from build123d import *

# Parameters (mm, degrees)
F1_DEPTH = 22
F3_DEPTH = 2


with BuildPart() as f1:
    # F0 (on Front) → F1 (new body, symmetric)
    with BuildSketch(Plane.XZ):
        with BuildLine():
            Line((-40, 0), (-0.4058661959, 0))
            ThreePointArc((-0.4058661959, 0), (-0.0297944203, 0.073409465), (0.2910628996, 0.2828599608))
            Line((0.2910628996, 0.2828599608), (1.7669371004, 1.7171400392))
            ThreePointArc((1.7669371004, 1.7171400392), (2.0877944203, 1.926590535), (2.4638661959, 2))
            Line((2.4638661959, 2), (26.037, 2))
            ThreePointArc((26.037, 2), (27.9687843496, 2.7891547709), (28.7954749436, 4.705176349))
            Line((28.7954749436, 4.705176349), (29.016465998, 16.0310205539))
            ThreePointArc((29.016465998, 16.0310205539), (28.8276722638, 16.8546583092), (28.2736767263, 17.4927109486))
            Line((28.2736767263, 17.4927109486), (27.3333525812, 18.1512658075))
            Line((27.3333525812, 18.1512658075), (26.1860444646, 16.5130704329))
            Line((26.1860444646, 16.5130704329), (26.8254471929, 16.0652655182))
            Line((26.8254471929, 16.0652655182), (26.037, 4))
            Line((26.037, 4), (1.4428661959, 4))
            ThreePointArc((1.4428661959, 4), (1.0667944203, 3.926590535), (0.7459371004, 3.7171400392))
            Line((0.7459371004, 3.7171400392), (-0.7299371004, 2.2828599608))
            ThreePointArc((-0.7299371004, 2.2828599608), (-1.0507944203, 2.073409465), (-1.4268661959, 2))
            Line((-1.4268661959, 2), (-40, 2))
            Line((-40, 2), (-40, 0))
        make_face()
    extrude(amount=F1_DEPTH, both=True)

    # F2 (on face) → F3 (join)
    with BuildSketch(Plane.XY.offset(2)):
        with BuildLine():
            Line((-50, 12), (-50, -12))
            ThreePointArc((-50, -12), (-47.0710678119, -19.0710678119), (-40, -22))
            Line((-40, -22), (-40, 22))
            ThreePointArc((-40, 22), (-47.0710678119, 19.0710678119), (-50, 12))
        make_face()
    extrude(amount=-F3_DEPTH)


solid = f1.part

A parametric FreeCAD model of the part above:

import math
import FreeCAD as App
import Part
import Sketcher
from FreeCAD import Vector

doc = App.newDocument("Part")
body = doc.addObject("PartDesign::Body", "Body")

# Sketch on XZ plane
sketch1 = doc.addObject("Sketcher::SketchObject", "Sketch")
body.addObject(sketch1)
sketch1.AttachmentSupport = (doc.XZ_Plane, [""])
sketch1.MapMode = "FlatFace"
sketch1.addGeometry([
    Part.LineSegment(Vector(-40, 0, 0), Vector(-0.405866, 0, 0)),  # 0
    Part.ArcOfCircle(Part.Circle(Vector(-0.405866, 1, 0), Vector(0, 0, 1), 1), math.radians(-90), math.radians(-45.818859)),  # 1
    Part.LineSegment(Vector(0.291063, 0.28286, 0), Vector(1.766937, 1.71714, 0)),  # 2
    Part.ArcOfCircle(Part.Circle(Vector(2.463866, 1, 0), Vector(0, 0, 1), 1), math.radians(90), math.radians(134.181141)),  # 3
    Part.LineSegment(Vector(2.463866, 2, 0), Vector(26.037, 2, 0)),  # 4
    Part.ArcOfCircle(Part.Circle(Vector(26.037, 4.759, 0), Vector(0, 0, 1), 2.759), math.radians(-90), math.radians(-1.117819)),  # 5
    Part.LineSegment(Vector(28.795475, 4.705176, 0), Vector(29.016466, 16.031021, 0)),  # 6
    Part.ArcOfCircle(Part.Circle(Vector(27.273798, 16.065024, 0), Vector(0, 0, 1), 1.743), math.radians(-1.117819), math.radians(54.994571)),  # 7
    Part.LineSegment(Vector(28.273677, 17.492711, 0), Vector(27.333353, 18.151266, 0)),  # 8
    Part.LineSegment(Vector(27.333353, 18.151266, 0), Vector(26.186044, 16.51307, 0)),  # 9
    Part.LineSegment(Vector(26.186044, 16.51307, 0), Vector(26.825447, 16.065266, 0)),  # 10
    Part.LineSegment(Vector(26.825447, 16.065266, 0), Vector(26.037, 4, 0)),  # 11
    Part.LineSegment(Vector(26.037, 4, 0), Vector(1.442866, 4, 0)),  # 12
    Part.ArcOfCircle(Part.Circle(Vector(1.442866, 3, 0), Vector(0, 0, 1), 1), math.radians(90), math.radians(134.181141)),  # 13
    Part.LineSegment(Vector(0.745937, 3.71714, 0), Vector(-0.729937, 2.28286, 0)),  # 14
    Part.ArcOfCircle(Part.Circle(Vector(-1.426866, 3, 0), Vector(0, 0, 1), 1), math.radians(-90), math.radians(-45.818859)),  # 15
    Part.LineSegment(Vector(-1.426866, 2, 0), Vector(-40, 2, 0)),  # 16
    Part.LineSegment(Vector(-40, 2, 0), Vector(-40, 0, 0)),  # 17
], False)
sketch1.addConstraint([
    Sketcher.Constraint("Tangent", 0, 2, 1, 1),
    Sketcher.Constraint("Tangent", 1, 2, 2, 1),
    Sketcher.Constraint("Tangent", 2, 2, 3, 2),
    Sketcher.Constraint("Tangent", 3, 1, 4, 1),
    Sketcher.Constraint("Tangent", 4, 2, 5, 1),
    Sketcher.Constraint("Tangent", 5, 2, 6, 1),
    Sketcher.Constraint("Tangent", 6, 2, 7, 1),
    Sketcher.Constraint("Tangent", 7, 2, 8, 1),
    Sketcher.Constraint("Coincident", 8, 2, 9, 1),
    Sketcher.Constraint("Coincident", 9, 2, 10, 1),
    Sketcher.Constraint("Coincident", 10, 2, 11, 1),
    Sketcher.Constraint("Coincident", 11, 2, 12, 1),
    Sketcher.Constraint("Tangent", 12, 2, 13, 1),
    Sketcher.Constraint("Tangent", 13, 2, 14, 1),
    Sketcher.Constraint("Tangent", 14, 2, 15, 2),
    Sketcher.Constraint("Tangent", 15, 1, 16, 1),
    Sketcher.Constraint("Coincident", 16, 2, 17, 1),
    Sketcher.Constraint("Coincident", 17, 2, 0, 1),
    Sketcher.Constraint("Horizontal", 0),
    Sketcher.Constraint("Horizontal", 4),
    Sketcher.Constraint("Horizontal", 12),
    Sketcher.Constraint("Horizontal", 16),
    Sketcher.Constraint("Vertical", 17),
    Sketcher.Constraint("Equal", 1, 3),
    Sketcher.Constraint("Equal", 3, 13),
    Sketcher.Constraint("Equal", 13, 15),
    Sketcher.Constraint("PointOnObject", 0, 2, -1),
    Sketcher.Constraint("Perpendicular", 8, 9),
    Sketcher.Constraint("Perpendicular", 9, 10),
    Sketcher.Constraint("Parallel", 2, 14),
    Sketcher.Constraint("Horizontal", 1, 3, 3, 3),
    Sketcher.Constraint("Horizontal", 13, 3, 15, 3),
    Sketcher.Constraint("Horizontal", 4, 2, 15, 1),
    Sketcher.Constraint("Vertical", 4, 2, 11, 2),
    Sketcher.Constraint("Radius", 1, 1.0),
    Sketcher.Constraint("Distance", 9, 2.0),
    Sketcher.Constraint("DistanceX", 16, 2, -1, 1, 40.0),
    Sketcher.Constraint("Radius", 5, 2.759),
    Sketcher.Constraint("Radius", 7, 1.743),
    Sketcher.Constraint("Distance", 2, 2.058),
    Sketcher.Constraint("Distance", 6, 11.328),
    Sketcher.Constraint("Distance", 8, 1.148),
    Sketcher.Constraint("Distance", 11, 12.091),
    Sketcher.Constraint("DistanceX", -1, 1, 5, 3, 26.037),
    Sketcher.Constraint("DistanceX", 13, 3, 3, 3, 1.021),
    Sketcher.Constraint("DistanceY", 10, 2, 8, 2, 2.086),
    Sketcher.Constraint("DistanceX", 3, 1, 6, 2, 26.5526),
    Sketcher.Constraint("DistanceX", 7, 2, 5, 2, 0.521798),
])
pad1 = doc.addObject("PartDesign::Pad", "Pad")
body.addObject(pad1)
pad1.Profile = sketch1
pad1.Length = 44
pad1.Midplane = True

# Sketch on XY plane
sketch2 = doc.addObject("Sketcher::SketchObject", "Sketch001")
body.addObject(sketch2)
sketch2.AttachmentSupport = (doc.XY_Plane, [""])
sketch2.MapMode = "FlatFace"
sketch2.AttachmentOffset = App.Placement(Vector(0, 0, 2), App.Rotation())
sketch2.addGeometry([
    Part.LineSegment(Vector(-50, 12, 0), Vector(-50, -12, 0)),
    Part.ArcOfCircle(Part.Circle(Vector(-40, -12, 0), Vector(0, 0, 1), 10), math.radians(180), math.radians(270)),
    Part.LineSegment(Vector(-40, -22, 0), Vector(-40, 22, 0)),
    Part.ArcOfCircle(Part.Circle(Vector(-40, 12, 0), Vector(0, 0, 1), 10), math.radians(90), math.radians(180)),
], False)
sketch2.addConstraint([
    Sketcher.Constraint("Tangent", 0, 2, 1, 1),
    Sketcher.Constraint("Coincident", 1, 2, 2, 1),
    Sketcher.Constraint("Coincident", 2, 2, 3, 1),
    Sketcher.Constraint("Tangent", 3, 2, 0, 1),
    Sketcher.Constraint("Vertical", 0),
    Sketcher.Constraint("Vertical", 2),
    Sketcher.Constraint("Equal", 1, 3),
    Sketcher.Constraint("Vertical", 3, 3, 1, 2),
    Sketcher.Constraint("Radius", 1, 10.0),
    Sketcher.Constraint("DistanceY", 0, 2, 0, 1, 24.0),
    Sketcher.Constraint("DistanceX", 1, 3, -1, 1, 40.0),
    Sketcher.Constraint("DistanceY", 1, 3, -1, 1, 12.0),
])
pad2 = doc.addObject("PartDesign::Pad", "Pad001")
body.addObject(pad2)
pad2.Profile = sketch2
pad2.Length = 2
pad2.Reversed = True

doc.recompute()
